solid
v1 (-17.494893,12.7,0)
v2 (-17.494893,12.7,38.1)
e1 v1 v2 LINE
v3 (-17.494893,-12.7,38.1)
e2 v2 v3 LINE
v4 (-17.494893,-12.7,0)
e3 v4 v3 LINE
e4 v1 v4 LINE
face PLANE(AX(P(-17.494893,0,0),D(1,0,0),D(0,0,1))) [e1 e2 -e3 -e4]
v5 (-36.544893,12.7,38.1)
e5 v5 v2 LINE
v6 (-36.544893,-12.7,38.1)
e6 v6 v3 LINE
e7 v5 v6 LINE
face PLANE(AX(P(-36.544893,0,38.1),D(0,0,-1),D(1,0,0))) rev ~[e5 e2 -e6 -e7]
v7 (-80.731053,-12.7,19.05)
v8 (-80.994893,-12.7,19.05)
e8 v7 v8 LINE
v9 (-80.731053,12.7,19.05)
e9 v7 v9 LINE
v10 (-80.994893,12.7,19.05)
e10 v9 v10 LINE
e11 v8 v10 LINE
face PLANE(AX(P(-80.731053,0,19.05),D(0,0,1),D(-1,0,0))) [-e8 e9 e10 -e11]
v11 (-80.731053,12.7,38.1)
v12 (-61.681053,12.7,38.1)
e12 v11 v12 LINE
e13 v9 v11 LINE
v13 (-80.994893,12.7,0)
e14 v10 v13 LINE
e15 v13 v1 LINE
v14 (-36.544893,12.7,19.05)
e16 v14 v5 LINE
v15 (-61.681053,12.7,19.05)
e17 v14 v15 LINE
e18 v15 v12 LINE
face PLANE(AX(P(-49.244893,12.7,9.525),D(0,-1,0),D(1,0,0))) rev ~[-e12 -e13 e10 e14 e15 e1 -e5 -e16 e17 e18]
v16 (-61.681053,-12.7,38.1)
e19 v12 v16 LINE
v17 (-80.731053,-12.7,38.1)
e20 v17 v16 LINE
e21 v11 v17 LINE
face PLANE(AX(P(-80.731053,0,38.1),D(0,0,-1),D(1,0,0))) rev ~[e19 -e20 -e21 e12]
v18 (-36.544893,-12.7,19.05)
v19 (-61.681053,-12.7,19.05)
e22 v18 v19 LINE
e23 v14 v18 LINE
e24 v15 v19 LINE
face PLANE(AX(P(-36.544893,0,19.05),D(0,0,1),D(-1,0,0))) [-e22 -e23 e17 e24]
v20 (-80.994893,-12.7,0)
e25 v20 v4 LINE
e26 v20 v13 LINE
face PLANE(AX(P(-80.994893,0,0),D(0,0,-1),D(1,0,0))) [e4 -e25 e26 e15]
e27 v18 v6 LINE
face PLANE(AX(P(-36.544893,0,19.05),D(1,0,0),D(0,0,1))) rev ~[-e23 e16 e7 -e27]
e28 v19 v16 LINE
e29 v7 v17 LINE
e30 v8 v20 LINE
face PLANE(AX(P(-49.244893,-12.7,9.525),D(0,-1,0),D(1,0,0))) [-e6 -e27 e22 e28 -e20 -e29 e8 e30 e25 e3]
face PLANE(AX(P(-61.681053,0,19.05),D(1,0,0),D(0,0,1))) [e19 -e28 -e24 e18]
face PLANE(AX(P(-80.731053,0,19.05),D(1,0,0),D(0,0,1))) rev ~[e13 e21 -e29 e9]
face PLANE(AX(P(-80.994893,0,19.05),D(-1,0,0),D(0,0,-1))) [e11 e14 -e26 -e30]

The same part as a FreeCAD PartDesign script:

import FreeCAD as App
import Part
import Sketcher

V = App.Vector
Q = App.Units.Quantity

doc = App.newDocument("Part")
body = doc.addObject("PartDesign::Body", "Body")

# Sketch on XZ plane
sketch1 = body.newObject("Sketcher::SketchObject", "Sketch")
sketch1.AttachmentSupport = (doc.getObject("XZ_Plane"), [""])
sketch1.MapMode = "FlatFace"
sketch1.addGeometry(Part.LineSegment(V(-80.99, 0, 0), V(-17.49, 0, 0)), False)
sketch1.addGeometry(Part.LineSegment(V(-17.49, 0, 0), V(-17.49, 38.1, 0)), False)
sketch1.addGeometry(Part.LineSegment(V(-17.49, 38.1, 0), V(-36.54, 38.1, 0)), False)
sketch1.addGeometry(Part.LineSegment(V(-36.54, 38.1, 0), V(-36.54, 19.05, 0)), False)
sketch1.addGeometry(Part.LineSegment(V(-36.54, 19.05, 0), V(-61.68, 19.05, 0)), False)
sketch1.addGeometry(Part.LineSegment(V(-61.68, 19.05, 0), V(-61.68, 38.1, 0)), False)
sketch1.addGeometry(Part.LineSegment(V(-61.68, 38.1, 0), V(-80.73, 38.1, 0)), False)
sketch1.addGeometry(Part.LineSegment(V(-80.73, 38.1, 0), V(-80.73, 19.05, 0)), False)
sketch1.addGeometry(Part.LineSegment(V(-80.73, 19.05, 0), V(-80.99, 19.05, 0)), False)
sketch1.addGeometry(Part.LineSegment(V(-80.99, 19.05, 0), V(-80.99, 0, 0)), False)
sketch1.addConstraint(Sketcher.Constraint("Coincident", 0, 2, 1, 1))
sketch1.addConstraint(Sketcher.Constraint("Coincident", 1, 2, 2, 1))
sketch1.addConstraint(Sketcher.Constraint("Coincident", 2, 2, 3, 1))
sketch1.addConstraint(Sketcher.Constraint("Coincident", 3, 2, 4, 1))
sketch1.addConstraint(Sketcher.Constraint("Coincident", 4, 2, 5, 1))
sketch1.addConstraint(Sketcher.Constraint("Coincident", 5, 2, 6, 1))
sketch1.addConstraint(Sketcher.Constraint("Coincident", 6, 2, 7, 1))
sketch1.addConstraint(Sketcher.Constraint("Coincident", 7, 2, 8, 1))
sketch1.addConstraint(Sketcher.Constraint("Coincident", 8, 2, 9, 1))
sketch1.addConstraint(Sketcher.Constraint("Coincident", 9, 2, 0, 1))
sketch1.addConstraint(Sketcher.Constraint("Horizontal", 0))
sketch1.addConstraint(Sketcher.Constraint("Vertical", 1))
sketch1.addConstraint(Sketcher.Constraint("Horizontal", 2))
sketch1.addConstraint(Sketcher.Constraint("Vertical", 3))
sketch1.addConstraint(Sketcher.Constraint("Horizontal", 4))
sketch1.addConstraint(Sketcher.Constraint("Vertical", 5))
sketch1.addConstraint(Sketcher.Constraint("Horizontal", 6))
sketch1.addConstraint(Sketcher.Constraint("Vertical", 7))
sketch1.addConstraint(Sketcher.Constraint("Horizontal", 8))
sketch1.addConstraint(Sketcher.Constraint("Vertical", 9))
sketch1.addConstraint(Sketcher.Constraint("PointOnObject", 0, 2, -1))
sketch1.addConstraint(Sketcher.Constraint("Horizontal", 2, 2, 5, 2))
sketch1.addConstraint(Sketcher.Constraint("Horizontal", 4, 2, 7, 2))
sketch1.addConstraint(Sketcher.Constraint("Equal", 2, 6))
sketch1.addConstraint(Sketcher.Constraint("Equal", 6, 3))
sketch1.addConstraint(Sketcher.Constraint("Equal", 7, 9))
sketch1.addConstraint(Sketcher.Constraint("DistanceX", 0, 1, 0, 2, Q("2.5 in")))
sketch1.addConstraint(Sketcher.Constraint("DistanceY", 1, 1, 1, 2, Q("1.5 in")))
sketch1.addConstraint(Sketcher.Constraint("DistanceX", 4, 2, 4, 1, Q("25.13616 mm")))
sketch1.addConstraint(Sketcher.Constraint("DistanceX", 0, 2, -1, 1, Q("17.494893 mm")))
pad1 = body.newObject("PartDesign::Pad", "Pad")
pad1.Profile = sketch1
pad1.Length = Q("1 in")
pad1.Midplane = True

doc.recompute()
